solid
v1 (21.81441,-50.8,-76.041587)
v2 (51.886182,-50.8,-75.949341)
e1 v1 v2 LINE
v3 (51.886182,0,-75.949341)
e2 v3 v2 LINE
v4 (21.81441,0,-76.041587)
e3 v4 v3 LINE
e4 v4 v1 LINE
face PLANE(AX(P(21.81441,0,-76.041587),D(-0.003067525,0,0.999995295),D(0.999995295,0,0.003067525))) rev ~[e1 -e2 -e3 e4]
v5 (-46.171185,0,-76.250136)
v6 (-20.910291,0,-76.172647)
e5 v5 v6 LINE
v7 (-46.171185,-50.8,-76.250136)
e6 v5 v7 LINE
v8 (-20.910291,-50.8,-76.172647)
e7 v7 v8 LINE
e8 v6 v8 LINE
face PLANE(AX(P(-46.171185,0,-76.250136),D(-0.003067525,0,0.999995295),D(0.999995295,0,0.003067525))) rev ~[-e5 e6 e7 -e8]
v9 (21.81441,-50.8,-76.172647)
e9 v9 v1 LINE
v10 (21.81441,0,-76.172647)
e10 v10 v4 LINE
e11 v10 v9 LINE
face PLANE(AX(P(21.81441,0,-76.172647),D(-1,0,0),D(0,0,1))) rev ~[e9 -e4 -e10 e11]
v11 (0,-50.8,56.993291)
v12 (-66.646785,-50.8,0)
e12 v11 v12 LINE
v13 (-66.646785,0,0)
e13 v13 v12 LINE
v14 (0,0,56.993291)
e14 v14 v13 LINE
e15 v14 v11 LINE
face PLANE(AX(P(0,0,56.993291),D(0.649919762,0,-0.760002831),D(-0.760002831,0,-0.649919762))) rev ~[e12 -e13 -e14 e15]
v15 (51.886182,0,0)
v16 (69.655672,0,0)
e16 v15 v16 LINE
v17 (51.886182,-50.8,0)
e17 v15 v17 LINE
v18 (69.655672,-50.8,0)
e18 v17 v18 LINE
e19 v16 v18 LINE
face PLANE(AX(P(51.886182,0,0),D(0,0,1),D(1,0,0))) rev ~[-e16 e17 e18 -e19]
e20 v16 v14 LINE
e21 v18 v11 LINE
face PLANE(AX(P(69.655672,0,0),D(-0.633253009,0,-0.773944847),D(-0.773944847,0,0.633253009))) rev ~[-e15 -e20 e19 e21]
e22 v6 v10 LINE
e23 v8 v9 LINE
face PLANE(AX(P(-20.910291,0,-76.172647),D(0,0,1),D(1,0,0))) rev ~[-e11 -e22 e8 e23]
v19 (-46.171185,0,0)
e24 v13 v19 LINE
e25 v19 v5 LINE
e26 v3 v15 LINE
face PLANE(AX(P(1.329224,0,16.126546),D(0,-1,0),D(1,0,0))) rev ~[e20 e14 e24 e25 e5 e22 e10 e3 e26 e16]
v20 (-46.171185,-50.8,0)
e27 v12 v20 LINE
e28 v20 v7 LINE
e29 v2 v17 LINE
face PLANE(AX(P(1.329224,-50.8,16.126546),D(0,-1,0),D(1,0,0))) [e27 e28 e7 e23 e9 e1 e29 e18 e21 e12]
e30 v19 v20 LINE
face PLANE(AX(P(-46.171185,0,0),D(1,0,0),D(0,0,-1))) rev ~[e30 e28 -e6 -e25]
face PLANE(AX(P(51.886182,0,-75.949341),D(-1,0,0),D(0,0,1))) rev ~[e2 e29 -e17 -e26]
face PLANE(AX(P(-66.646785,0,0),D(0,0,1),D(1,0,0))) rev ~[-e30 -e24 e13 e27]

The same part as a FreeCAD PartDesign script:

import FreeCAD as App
import Part
import Sketcher

V = App.Vector
Q = App.Units.Quantity


def add_polygon(sketch, points):
    """Adds a closed chain of lines whose ends are joined by coincident constraints."""
    first, n = sketch.GeometryCount, len(points)
    for a, b in zip(points, points[1:] + points[:1]):
        sketch.addGeometry(Part.LineSegment(App.Vector(*a, 0), App.Vector(*b, 0)), False)
    for i in range(n):
        sketch.addConstraint(Sketcher.Constraint("Coincident", first + i, 2, first + (i + 1) % n, 1))

doc = App.newDocument("Part")
params = doc.addObject("Spreadsheet::Sheet", "Params")
for row, (alias, value) in enumerate([
    ("pad1_length", "2 in"),
], start=1):
    params.set(f"A{row}", alias)
    params.set(f"B{row}", "=" + value)
    params.setAlias(f"B{row}", alias)

body = doc.addObject("PartDesign::Body", "Body")

# Sketch on XZ plane
sketch1 = doc.addObject("Sketcher::SketchObject", "Sketch")
body.addObject(sketch1)
sketch1.AttachmentSupport = (doc.XZ_Plane, [""])
sketch1.MapMode = "FlatFace"
add_polygon(sketch1, [(-66.646785, 0), (-46.171185, 0), (-46.171185, -76.250136), (-20.910291, -76.172647), (21.81441, -76.172647), (21.81441, -76.041587), (51.886182, -75.949341), (51.886182, 0), (69.655672, 0), (0, 56.993291)])  # lines 0-9
sketch1.addConstraint([
    Sketcher.Constraint("Horizontal", 0),
    Sketcher.Constraint("Vertical", 1),
    Sketcher.Constraint("Horizontal", 3),
    Sketcher.Constraint("Vertical", 4),
    Sketcher.Constraint("Vertical", 6),
    Sketcher.Constraint("Horizontal", 7),
    Sketcher.Constraint("PointOnObject", 0, 2, -1),
    Sketcher.Constraint("PointOnObject", 6, 2, -1),
    Sketcher.Constraint("PointOnObject", 8, 2, -2),
    Sketcher.Constraint("Parallel", 2, 5),
    Sketcher.Constraint("DistanceX", 0, 1, 0, 2, Q("20.4756 mm")),
    Sketcher.Constraint("DistanceX", 3, 1, 3, 2, Q("42.724701 mm")),
    Sketcher.Constraint("DistanceX", 7, 1, 7, 2, Q("17.769489 mm")),
    Sketcher.Constraint("DistanceY", 4, 1, 4, 2, Q("0.13106 mm")),
    Sketcher.Constraint("DistanceY", 6, 1, 6, 2, Q("75.949341 mm")),
    Sketcher.Constraint("Distance", 8, Q("90.000821 mm")),
    Sketcher.Constraint("Distance", 9, Q("87.692811 mm")),
    Sketcher.Constraint("DistanceY", 1, 2, 1, 1, Q("76.250136 mm")),
    Sketcher.Constraint("DistanceX", 2, 2, -1, 1, Q("20.910291 mm")),
    Sketcher.Constraint("DistanceX", -1, 1, 7, 2, Q("69.655672 mm")),
])
pad1 = doc.addObject("PartDesign::Pad", "Pad")
body.addObject(pad1)
pad1.Profile = sketch1
pad1.setExpression("Length", "Params.pad1_length")

doc.recompute()
